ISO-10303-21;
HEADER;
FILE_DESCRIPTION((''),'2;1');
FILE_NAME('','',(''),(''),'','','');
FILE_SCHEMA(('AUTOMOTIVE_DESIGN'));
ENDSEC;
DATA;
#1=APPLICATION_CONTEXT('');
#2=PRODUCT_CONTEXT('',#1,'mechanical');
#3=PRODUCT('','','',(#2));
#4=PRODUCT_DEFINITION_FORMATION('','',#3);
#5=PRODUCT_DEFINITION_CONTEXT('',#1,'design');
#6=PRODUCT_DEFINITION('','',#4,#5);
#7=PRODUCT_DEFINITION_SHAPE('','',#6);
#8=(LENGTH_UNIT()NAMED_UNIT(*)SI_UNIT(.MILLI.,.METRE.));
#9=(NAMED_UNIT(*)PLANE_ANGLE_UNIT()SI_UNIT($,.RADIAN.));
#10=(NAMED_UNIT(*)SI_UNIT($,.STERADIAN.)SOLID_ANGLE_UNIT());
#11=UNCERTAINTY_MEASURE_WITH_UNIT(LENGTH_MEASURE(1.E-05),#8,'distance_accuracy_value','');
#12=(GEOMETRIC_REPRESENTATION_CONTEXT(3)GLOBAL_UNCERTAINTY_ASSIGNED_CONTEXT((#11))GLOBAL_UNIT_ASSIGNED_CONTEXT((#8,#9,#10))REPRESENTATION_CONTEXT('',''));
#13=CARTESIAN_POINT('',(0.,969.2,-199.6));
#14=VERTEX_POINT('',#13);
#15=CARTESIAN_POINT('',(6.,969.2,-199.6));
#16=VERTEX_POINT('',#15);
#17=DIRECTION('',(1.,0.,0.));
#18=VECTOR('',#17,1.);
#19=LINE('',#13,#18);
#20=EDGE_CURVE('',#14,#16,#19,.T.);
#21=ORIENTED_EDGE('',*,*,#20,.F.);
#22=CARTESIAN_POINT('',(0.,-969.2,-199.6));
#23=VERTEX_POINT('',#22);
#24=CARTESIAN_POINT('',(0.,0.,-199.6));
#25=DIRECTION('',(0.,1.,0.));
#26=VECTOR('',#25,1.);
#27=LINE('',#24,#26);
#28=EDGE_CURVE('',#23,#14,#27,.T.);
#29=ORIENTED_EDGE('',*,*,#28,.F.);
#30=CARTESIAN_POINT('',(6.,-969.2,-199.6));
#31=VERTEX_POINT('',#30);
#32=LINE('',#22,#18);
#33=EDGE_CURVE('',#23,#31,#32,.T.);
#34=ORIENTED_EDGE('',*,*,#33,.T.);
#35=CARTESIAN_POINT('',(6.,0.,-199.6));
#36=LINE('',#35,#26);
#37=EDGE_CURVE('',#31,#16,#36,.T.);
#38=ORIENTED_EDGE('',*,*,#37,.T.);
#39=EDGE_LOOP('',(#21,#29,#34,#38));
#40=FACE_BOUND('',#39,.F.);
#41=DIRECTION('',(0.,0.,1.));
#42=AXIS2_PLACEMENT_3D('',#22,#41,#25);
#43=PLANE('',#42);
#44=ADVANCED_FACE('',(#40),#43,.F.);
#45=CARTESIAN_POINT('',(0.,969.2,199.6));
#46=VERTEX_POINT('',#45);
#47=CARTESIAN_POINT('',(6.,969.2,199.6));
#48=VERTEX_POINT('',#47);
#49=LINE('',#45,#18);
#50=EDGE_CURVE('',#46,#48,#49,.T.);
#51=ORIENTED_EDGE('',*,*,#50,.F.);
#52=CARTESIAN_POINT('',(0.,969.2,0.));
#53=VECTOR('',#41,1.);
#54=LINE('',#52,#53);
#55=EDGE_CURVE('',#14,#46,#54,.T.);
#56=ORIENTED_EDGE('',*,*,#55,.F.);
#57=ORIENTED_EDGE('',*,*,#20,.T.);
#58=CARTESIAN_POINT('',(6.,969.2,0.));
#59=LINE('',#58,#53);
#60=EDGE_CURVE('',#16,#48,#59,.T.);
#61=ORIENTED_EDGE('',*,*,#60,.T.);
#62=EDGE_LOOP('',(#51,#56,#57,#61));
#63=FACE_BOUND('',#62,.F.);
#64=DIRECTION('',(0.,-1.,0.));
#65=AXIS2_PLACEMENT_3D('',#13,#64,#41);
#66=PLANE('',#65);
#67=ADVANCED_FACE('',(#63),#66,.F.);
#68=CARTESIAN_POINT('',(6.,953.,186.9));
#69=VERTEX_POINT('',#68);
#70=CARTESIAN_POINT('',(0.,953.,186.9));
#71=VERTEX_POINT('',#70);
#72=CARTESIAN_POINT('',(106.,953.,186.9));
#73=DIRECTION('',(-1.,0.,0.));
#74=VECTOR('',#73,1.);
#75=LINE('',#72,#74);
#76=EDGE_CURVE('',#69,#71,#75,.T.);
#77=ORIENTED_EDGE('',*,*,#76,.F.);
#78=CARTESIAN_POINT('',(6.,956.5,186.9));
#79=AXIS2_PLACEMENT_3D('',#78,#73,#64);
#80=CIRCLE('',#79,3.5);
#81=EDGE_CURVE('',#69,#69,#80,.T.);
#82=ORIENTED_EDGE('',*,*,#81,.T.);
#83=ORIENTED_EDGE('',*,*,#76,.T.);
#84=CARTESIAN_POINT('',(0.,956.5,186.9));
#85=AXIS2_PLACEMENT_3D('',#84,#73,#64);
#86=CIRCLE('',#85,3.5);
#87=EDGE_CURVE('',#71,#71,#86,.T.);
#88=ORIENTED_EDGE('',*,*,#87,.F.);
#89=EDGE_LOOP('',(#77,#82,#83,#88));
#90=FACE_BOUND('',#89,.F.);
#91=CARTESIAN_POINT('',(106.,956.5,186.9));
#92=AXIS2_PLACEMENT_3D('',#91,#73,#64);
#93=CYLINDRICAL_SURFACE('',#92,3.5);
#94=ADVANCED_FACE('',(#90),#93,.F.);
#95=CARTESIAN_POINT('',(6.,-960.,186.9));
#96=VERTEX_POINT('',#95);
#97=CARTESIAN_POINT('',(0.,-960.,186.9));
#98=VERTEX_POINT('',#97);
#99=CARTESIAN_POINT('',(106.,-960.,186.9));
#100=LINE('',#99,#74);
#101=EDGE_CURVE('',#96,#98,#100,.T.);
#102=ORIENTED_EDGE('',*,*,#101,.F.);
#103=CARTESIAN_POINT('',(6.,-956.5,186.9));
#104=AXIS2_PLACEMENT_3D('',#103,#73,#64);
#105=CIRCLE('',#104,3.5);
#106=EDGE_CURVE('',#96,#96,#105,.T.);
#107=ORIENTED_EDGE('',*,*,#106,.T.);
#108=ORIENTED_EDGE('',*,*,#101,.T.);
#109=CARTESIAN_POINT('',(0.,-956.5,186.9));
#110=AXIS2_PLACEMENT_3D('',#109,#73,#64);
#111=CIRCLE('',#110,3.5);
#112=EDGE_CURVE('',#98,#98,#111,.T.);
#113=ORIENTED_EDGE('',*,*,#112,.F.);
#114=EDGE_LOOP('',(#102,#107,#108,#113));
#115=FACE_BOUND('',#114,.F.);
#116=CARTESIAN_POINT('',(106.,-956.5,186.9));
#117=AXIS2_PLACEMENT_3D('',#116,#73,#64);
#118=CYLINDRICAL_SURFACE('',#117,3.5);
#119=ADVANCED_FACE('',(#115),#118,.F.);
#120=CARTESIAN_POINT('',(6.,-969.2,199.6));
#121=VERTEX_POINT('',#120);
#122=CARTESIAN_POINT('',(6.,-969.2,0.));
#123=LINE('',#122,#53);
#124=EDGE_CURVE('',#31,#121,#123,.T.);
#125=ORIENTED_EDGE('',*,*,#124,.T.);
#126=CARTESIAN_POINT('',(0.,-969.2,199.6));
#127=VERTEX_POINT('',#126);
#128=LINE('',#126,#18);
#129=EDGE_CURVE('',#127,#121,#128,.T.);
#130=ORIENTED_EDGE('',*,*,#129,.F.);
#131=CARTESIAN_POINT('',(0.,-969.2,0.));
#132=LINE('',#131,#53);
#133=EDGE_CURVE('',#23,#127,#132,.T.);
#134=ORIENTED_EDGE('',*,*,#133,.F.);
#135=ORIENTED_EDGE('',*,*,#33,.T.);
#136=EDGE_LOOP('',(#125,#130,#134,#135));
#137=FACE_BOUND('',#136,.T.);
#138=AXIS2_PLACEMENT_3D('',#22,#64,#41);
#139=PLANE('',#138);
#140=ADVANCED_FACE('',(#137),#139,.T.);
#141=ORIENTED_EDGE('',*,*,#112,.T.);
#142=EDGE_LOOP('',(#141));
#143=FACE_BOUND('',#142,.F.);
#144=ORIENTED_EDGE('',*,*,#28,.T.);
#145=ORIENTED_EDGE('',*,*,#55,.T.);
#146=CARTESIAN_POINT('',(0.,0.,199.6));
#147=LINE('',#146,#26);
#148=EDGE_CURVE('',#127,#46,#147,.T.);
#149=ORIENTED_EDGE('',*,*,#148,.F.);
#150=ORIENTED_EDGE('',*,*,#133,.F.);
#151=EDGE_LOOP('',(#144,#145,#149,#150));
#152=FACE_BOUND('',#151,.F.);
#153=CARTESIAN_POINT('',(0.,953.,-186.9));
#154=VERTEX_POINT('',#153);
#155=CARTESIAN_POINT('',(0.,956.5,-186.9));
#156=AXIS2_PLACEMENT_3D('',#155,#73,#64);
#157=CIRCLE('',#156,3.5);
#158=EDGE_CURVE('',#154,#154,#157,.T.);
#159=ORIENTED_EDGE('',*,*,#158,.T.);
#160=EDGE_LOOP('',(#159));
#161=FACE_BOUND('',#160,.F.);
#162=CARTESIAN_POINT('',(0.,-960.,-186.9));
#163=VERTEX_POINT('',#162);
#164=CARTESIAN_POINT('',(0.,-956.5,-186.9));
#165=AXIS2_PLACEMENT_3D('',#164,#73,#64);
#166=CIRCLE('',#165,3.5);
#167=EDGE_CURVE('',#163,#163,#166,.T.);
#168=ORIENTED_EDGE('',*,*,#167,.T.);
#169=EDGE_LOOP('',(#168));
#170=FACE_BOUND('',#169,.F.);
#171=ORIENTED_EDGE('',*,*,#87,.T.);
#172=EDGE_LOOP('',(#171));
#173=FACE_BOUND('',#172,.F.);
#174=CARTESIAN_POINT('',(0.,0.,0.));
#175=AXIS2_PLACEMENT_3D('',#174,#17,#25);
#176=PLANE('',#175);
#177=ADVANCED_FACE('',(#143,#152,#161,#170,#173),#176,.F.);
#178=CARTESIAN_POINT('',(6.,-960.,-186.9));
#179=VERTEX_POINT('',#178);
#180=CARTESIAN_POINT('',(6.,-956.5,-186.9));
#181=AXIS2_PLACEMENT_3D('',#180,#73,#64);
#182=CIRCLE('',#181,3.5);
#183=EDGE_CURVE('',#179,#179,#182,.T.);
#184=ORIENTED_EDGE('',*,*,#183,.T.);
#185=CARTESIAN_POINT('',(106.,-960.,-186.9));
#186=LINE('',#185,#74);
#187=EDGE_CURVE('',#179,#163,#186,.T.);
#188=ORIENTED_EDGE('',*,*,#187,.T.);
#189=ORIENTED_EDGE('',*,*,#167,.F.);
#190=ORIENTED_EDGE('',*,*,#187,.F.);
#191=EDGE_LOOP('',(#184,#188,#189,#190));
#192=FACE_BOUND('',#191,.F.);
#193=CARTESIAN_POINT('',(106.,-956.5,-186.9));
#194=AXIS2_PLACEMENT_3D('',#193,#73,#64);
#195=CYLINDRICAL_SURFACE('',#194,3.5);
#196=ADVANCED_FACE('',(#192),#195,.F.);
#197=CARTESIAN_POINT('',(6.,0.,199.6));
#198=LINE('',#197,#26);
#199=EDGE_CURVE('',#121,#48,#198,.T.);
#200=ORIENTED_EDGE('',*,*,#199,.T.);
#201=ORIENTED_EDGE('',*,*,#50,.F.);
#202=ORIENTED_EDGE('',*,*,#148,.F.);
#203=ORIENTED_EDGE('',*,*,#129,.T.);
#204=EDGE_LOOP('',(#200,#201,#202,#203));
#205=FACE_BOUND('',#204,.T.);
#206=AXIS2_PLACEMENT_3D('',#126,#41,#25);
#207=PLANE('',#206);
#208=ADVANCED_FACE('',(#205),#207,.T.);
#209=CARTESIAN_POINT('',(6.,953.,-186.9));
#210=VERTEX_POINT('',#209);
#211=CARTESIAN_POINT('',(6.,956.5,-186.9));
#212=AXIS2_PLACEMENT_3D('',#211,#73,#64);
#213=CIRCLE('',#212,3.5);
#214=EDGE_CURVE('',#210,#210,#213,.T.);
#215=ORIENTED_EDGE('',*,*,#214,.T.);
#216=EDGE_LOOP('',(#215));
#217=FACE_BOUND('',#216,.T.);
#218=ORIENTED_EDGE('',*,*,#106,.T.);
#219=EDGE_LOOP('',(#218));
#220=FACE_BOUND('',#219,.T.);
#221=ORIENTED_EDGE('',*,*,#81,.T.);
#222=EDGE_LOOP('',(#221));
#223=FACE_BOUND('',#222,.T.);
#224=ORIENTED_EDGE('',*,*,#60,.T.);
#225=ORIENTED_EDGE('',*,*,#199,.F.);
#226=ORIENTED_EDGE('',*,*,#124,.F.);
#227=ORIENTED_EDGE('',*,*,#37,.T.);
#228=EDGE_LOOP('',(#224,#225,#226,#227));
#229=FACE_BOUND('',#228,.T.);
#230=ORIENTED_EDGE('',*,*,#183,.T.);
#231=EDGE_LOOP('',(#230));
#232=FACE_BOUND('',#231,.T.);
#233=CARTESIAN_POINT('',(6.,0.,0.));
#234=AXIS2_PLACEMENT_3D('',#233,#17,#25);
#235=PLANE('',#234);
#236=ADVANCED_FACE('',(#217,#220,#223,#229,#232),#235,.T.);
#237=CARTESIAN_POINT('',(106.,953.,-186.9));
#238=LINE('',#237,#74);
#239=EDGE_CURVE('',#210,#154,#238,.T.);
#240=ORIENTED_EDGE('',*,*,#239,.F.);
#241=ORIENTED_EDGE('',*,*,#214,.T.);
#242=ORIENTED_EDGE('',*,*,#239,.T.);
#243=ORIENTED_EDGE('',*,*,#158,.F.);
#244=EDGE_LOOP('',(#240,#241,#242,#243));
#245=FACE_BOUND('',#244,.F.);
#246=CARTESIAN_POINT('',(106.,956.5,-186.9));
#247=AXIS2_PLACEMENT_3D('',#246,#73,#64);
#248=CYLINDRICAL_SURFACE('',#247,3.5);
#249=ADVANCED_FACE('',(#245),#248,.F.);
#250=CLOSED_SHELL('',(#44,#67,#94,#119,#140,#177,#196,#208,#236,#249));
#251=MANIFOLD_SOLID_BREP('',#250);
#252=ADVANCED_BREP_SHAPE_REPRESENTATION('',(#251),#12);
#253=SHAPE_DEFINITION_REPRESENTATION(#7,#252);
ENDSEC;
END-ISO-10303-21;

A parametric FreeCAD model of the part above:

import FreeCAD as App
import Part
import Sketcher
Q = App.Units.Quantity

doc = App.newDocument("Part")
body = doc.addObject("PartDesign::Body", "Body")

# Sketch on YZ plane
sketch1 = doc.addObject("Sketcher::SketchObject", "Sketch")
body.addObject(sketch1)
sketch1.AttachmentSupport = (doc.YZ_Plane, [""])
sketch1.MapMode = "FlatFace"
sketch1.addGeometry([
    Part.LineSegment(App.Vector(-969.2, 199.6, 0), App.Vector(-969.2, -199.6, 0)),
    Part.LineSegment(App.Vector(-969.2, -199.6, 0), App.Vector(969.2, -199.6, 0)),
    Part.LineSegment(App.Vector(969.2, -199.6, 0), App.Vector(969.2, 199.6, 0)),
    Part.LineSegment(App.Vector(969.2, 199.6, 0), App.Vector(-969.2, 199.6, 0)),
], False)
sketch1.addConstraint([
    Sketcher.Constraint("Coincident", 0, 2, 1, 1),
    Sketcher.Constraint("Coincident", 1, 2, 2, 1),
    Sketcher.Constraint("Coincident", 2, 2, 3, 1),
    Sketcher.Constraint("Coincident", 3, 2, 0, 1),
    Sketcher.Constraint("Vertical", 0),
    Sketcher.Constraint("Horizontal", 1),
    Sketcher.Constraint("Vertical", 2),
    Sketcher.Constraint("Horizontal", 3),
    Sketcher.Constraint("Symmetric", 0, 2, 2, 2, -1, 1),
    Sketcher.Constraint("DistanceX", 1, 1, 1, 2, Q("1938.4 mm")),
    Sketcher.Constraint("DistanceY", 0, 2, 0, 1, Q("399.2 mm")),
])
pad1 = doc.addObject("PartDesign::Pad", "Pad")
body.addObject(pad1)
pad1.Profile = sketch1
pad1.Length = 6

# Sketch on YZ plane
sketch2 = doc.addObject("Sketcher::SketchObject", "Sketch001")
body.addObject(sketch2)
sketch2.AttachmentSupport = (doc.YZ_Plane, [""])
sketch2.MapMode = "FlatFace"
sketch2.AttachmentOffset = App.Placement(App.Vector(0, 0, 6), App.Rotation())
sketch2.addGeometry([
    Part.Circle(App.Vector(-956.5, 186.9, 0), App.Vector(0, 0, 1), 3.5),
    Part.Circle(App.Vector(-956.5, -186.9, 0), App.Vector(0, 0, 1), 3.5),
    Part.Circle(App.Vector(956.5, 186.9, 0), App.Vector(0, 0, 1), 3.5),
    Part.Circle(App.Vector(956.5, -186.9, 0), App.Vector(0, 0, 1), 3.5),
], False)
sketch2.addConstraint([
    Sketcher.Constraint("Equal", 0, 1),
    Sketcher.Constraint("Equal", 1, 2),
    Sketcher.Constraint("Equal", 2, 3),
    Sketcher.Constraint("Symmetric", 1, 3, 2, 3, -1, 1),
    Sketcher.Constraint("Symmetric", 0, 3, 3, 3, -1, 1),
    Sketcher.Constraint("Symmetric", 0, 3, 2, 3, -2),
    Sketcher.Constraint("Diameter", 0, Q("7 mm")),
    Sketcher.Constraint("DistanceX", 0, 3, 2, 3, Q("1913 mm")),
    Sketcher.Constraint("DistanceY", -1, 1, 0, 3, Q("186.9 mm")),
])
doc.recompute()
hole = doc.addObject("PartDesign::Hole", "Hole")
body.addObject(hole)
hole.Profile = sketch2
hole.ThreadType = "None"
hole.Diameter = 7
hole.DepthType = "Dimension"
hole.Depth = 100
hole.DrillPoint = "Flat"

doc.recompute()
